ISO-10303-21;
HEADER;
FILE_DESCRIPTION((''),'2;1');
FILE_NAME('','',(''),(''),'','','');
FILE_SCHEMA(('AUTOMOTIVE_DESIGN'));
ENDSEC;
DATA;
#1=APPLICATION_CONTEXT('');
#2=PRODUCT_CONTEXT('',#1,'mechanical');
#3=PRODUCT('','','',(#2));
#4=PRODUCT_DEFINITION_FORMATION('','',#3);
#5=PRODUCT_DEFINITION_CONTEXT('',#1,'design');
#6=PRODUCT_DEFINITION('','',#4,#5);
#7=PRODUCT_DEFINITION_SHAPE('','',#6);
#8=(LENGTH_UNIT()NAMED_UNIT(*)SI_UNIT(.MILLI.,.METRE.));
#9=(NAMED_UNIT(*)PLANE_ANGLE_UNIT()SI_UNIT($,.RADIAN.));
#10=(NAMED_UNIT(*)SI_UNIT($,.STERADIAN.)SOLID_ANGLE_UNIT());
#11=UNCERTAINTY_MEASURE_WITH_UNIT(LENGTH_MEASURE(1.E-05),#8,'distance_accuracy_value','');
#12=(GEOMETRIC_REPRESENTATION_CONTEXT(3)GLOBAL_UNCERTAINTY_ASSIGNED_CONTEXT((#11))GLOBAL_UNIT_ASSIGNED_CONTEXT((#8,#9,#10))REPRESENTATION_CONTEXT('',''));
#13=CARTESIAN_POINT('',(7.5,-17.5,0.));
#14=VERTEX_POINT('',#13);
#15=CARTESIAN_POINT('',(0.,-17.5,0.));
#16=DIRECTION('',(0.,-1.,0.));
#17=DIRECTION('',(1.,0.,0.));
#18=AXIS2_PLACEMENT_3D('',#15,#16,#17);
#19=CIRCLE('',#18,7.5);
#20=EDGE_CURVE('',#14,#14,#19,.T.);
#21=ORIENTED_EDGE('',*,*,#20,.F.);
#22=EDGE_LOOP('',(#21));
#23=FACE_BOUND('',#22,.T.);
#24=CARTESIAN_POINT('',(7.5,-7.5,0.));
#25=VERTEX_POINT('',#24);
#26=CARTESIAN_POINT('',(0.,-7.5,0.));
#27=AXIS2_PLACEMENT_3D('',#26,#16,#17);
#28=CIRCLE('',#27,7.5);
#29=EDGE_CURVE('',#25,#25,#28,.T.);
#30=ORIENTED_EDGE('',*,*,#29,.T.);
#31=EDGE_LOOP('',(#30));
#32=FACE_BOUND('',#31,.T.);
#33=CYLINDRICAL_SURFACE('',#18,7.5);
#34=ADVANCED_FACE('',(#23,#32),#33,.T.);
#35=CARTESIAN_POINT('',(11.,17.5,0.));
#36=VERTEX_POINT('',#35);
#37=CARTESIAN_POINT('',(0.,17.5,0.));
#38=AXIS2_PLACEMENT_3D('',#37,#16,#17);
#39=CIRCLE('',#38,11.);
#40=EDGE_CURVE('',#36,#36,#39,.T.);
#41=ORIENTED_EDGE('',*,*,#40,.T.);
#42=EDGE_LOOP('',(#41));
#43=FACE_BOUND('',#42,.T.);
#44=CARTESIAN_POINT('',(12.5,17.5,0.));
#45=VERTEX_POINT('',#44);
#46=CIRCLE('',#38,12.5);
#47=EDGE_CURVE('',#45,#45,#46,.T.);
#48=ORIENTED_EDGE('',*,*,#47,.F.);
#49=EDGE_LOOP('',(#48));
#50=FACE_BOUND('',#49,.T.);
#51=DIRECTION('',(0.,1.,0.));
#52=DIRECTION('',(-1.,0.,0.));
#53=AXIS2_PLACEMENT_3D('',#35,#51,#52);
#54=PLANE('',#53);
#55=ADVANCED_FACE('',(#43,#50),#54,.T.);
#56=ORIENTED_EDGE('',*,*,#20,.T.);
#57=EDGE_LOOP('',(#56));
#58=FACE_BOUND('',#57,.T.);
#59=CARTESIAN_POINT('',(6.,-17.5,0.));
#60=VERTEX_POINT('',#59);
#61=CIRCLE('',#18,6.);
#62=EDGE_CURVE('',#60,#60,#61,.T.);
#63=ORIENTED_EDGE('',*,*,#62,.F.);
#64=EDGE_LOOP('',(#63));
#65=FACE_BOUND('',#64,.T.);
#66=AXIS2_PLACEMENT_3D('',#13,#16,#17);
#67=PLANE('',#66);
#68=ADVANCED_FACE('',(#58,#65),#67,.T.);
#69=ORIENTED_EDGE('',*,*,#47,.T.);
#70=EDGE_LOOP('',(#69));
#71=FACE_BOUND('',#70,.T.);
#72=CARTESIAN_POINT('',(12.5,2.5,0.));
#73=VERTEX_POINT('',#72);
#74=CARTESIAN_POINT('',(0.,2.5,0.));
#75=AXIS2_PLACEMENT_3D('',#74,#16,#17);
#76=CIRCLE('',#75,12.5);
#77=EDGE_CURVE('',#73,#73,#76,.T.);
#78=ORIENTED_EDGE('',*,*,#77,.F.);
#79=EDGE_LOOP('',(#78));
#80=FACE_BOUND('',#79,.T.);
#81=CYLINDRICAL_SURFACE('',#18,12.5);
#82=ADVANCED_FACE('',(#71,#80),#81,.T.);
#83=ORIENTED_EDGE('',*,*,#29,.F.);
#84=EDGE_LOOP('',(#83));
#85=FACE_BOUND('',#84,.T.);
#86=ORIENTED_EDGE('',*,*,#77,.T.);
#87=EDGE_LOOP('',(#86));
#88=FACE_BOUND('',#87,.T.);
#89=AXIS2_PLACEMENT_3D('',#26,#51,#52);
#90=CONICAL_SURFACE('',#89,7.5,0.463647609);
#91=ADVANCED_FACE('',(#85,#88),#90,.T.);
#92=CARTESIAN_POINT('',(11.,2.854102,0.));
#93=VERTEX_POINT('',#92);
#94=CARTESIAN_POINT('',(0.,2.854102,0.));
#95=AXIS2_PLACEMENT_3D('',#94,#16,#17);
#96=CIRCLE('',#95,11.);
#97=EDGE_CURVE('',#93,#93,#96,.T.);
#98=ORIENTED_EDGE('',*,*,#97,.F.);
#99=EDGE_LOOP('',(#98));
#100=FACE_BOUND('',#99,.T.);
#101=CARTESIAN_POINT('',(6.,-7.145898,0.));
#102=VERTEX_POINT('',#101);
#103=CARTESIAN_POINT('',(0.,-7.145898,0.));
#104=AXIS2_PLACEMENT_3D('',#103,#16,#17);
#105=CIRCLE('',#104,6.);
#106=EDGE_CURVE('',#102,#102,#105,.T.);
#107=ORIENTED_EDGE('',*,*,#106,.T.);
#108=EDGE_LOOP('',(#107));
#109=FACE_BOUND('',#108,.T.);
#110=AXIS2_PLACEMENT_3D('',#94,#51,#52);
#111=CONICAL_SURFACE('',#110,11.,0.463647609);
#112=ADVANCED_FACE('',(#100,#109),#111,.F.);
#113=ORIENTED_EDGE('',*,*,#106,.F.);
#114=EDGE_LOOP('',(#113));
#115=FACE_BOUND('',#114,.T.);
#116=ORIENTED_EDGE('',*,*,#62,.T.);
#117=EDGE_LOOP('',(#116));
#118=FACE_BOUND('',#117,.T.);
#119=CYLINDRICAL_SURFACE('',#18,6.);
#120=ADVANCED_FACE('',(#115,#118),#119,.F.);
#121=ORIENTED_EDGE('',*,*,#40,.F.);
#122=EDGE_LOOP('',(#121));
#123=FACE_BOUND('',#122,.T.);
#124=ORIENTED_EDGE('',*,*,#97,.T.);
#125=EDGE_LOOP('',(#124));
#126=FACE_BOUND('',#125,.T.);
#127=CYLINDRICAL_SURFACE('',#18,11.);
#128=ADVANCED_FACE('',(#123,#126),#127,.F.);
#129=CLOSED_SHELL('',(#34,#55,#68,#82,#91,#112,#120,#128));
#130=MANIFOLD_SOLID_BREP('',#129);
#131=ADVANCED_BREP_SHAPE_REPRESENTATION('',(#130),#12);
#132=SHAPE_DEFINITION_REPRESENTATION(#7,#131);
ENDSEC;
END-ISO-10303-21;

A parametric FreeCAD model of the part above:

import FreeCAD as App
import Part
import Sketcher


def add_polygon(sketch, points):
    """Adds a closed chain of lines whose ends are joined by coincident constraints."""
    first, n = sketch.GeometryCount, len(points)
    for a, b in zip(points, points[1:] + points[:1]):
        sketch.addGeometry(Part.LineSegment(App.Vector(*a, 0), App.Vector(*b, 0)), False)
    for i in range(n):
        sketch.addConstraint(Sketcher.Constraint("Coincident", first + i, 2, first + (i + 1) % n, 1))

doc = App.newDocument("Part")
body = doc.addObject("PartDesign::Body", "Body")

# Sketch on XY plane
sketch1 = body.newObject("Sketcher::SketchObject", "Sketch")
sketch1.AttachmentSupport = (doc.getObject("XY_Plane"), [""])
sketch1.MapMode = "FlatFace"
add_polygon(sketch1, [(12.5, 2.5), (12.5, 17.5), (11, 17.5), (11, 2.9), (6, -7.1), (6, -17.5), (7.5, -17.5), (7.5, -7.5)])  # lines 0-7
sketch1.addConstraint(Sketcher.Constraint("Vertical", 0))
sketch1.addConstraint(Sketcher.Constraint("Horizontal", 1))
sketch1.addConstraint(Sketcher.Constraint("Vertical", 2))
sketch1.addConstraint(Sketcher.Constraint("Vertical", 4))
sketch1.addConstraint(Sketcher.Constraint("Horizontal", 5))
sketch1.addConstraint(Sketcher.Constraint("Vertical", 6))
sketch1.addConstraint(Sketcher.Constraint("Parallel", 3, 7))
sketch1.addConstraint(Sketcher.Constraint("Equal", 1, 5))
sketch1.addConstraint(Sketcher.Constraint("DistanceY", 0, 1, 0, 2, 15.0))
sketch1.addConstraint(Sketcher.Constraint("DistanceY", 6, 1, 6, 2, 10.0))
sketch1.addConstraint(Sketcher.Constraint("DistanceX", 1, 2, 1, 1, 1.5))
sketch1.addConstraint(Sketcher.Constraint("DistanceX", -1, 1, 1, 2, 11.0))
sketch1.addConstraint(Sketcher.Constraint("DistanceX", -1, 1, 3, 2, 6.0))
sketch1.addConstraint(Sketcher.Constraint("DistanceY", 3, 2, 2, 2, 10.0))
sketch1.addConstraint(Sketcher.Constraint("DistanceY", -1, 1, 0, 2, 17.5))
sketch1.addConstraint(Sketcher.Constraint("DistanceY", 2, 2, 2, 1, 14.645898))
revolution = body.newObject("PartDesign::Revolution", "Revolution")
revolution.Profile = sketch1
revolution.ReferenceAxis = (sketch1, ["V_Axis"])
revolution.Angle = 360

doc.recompute()
